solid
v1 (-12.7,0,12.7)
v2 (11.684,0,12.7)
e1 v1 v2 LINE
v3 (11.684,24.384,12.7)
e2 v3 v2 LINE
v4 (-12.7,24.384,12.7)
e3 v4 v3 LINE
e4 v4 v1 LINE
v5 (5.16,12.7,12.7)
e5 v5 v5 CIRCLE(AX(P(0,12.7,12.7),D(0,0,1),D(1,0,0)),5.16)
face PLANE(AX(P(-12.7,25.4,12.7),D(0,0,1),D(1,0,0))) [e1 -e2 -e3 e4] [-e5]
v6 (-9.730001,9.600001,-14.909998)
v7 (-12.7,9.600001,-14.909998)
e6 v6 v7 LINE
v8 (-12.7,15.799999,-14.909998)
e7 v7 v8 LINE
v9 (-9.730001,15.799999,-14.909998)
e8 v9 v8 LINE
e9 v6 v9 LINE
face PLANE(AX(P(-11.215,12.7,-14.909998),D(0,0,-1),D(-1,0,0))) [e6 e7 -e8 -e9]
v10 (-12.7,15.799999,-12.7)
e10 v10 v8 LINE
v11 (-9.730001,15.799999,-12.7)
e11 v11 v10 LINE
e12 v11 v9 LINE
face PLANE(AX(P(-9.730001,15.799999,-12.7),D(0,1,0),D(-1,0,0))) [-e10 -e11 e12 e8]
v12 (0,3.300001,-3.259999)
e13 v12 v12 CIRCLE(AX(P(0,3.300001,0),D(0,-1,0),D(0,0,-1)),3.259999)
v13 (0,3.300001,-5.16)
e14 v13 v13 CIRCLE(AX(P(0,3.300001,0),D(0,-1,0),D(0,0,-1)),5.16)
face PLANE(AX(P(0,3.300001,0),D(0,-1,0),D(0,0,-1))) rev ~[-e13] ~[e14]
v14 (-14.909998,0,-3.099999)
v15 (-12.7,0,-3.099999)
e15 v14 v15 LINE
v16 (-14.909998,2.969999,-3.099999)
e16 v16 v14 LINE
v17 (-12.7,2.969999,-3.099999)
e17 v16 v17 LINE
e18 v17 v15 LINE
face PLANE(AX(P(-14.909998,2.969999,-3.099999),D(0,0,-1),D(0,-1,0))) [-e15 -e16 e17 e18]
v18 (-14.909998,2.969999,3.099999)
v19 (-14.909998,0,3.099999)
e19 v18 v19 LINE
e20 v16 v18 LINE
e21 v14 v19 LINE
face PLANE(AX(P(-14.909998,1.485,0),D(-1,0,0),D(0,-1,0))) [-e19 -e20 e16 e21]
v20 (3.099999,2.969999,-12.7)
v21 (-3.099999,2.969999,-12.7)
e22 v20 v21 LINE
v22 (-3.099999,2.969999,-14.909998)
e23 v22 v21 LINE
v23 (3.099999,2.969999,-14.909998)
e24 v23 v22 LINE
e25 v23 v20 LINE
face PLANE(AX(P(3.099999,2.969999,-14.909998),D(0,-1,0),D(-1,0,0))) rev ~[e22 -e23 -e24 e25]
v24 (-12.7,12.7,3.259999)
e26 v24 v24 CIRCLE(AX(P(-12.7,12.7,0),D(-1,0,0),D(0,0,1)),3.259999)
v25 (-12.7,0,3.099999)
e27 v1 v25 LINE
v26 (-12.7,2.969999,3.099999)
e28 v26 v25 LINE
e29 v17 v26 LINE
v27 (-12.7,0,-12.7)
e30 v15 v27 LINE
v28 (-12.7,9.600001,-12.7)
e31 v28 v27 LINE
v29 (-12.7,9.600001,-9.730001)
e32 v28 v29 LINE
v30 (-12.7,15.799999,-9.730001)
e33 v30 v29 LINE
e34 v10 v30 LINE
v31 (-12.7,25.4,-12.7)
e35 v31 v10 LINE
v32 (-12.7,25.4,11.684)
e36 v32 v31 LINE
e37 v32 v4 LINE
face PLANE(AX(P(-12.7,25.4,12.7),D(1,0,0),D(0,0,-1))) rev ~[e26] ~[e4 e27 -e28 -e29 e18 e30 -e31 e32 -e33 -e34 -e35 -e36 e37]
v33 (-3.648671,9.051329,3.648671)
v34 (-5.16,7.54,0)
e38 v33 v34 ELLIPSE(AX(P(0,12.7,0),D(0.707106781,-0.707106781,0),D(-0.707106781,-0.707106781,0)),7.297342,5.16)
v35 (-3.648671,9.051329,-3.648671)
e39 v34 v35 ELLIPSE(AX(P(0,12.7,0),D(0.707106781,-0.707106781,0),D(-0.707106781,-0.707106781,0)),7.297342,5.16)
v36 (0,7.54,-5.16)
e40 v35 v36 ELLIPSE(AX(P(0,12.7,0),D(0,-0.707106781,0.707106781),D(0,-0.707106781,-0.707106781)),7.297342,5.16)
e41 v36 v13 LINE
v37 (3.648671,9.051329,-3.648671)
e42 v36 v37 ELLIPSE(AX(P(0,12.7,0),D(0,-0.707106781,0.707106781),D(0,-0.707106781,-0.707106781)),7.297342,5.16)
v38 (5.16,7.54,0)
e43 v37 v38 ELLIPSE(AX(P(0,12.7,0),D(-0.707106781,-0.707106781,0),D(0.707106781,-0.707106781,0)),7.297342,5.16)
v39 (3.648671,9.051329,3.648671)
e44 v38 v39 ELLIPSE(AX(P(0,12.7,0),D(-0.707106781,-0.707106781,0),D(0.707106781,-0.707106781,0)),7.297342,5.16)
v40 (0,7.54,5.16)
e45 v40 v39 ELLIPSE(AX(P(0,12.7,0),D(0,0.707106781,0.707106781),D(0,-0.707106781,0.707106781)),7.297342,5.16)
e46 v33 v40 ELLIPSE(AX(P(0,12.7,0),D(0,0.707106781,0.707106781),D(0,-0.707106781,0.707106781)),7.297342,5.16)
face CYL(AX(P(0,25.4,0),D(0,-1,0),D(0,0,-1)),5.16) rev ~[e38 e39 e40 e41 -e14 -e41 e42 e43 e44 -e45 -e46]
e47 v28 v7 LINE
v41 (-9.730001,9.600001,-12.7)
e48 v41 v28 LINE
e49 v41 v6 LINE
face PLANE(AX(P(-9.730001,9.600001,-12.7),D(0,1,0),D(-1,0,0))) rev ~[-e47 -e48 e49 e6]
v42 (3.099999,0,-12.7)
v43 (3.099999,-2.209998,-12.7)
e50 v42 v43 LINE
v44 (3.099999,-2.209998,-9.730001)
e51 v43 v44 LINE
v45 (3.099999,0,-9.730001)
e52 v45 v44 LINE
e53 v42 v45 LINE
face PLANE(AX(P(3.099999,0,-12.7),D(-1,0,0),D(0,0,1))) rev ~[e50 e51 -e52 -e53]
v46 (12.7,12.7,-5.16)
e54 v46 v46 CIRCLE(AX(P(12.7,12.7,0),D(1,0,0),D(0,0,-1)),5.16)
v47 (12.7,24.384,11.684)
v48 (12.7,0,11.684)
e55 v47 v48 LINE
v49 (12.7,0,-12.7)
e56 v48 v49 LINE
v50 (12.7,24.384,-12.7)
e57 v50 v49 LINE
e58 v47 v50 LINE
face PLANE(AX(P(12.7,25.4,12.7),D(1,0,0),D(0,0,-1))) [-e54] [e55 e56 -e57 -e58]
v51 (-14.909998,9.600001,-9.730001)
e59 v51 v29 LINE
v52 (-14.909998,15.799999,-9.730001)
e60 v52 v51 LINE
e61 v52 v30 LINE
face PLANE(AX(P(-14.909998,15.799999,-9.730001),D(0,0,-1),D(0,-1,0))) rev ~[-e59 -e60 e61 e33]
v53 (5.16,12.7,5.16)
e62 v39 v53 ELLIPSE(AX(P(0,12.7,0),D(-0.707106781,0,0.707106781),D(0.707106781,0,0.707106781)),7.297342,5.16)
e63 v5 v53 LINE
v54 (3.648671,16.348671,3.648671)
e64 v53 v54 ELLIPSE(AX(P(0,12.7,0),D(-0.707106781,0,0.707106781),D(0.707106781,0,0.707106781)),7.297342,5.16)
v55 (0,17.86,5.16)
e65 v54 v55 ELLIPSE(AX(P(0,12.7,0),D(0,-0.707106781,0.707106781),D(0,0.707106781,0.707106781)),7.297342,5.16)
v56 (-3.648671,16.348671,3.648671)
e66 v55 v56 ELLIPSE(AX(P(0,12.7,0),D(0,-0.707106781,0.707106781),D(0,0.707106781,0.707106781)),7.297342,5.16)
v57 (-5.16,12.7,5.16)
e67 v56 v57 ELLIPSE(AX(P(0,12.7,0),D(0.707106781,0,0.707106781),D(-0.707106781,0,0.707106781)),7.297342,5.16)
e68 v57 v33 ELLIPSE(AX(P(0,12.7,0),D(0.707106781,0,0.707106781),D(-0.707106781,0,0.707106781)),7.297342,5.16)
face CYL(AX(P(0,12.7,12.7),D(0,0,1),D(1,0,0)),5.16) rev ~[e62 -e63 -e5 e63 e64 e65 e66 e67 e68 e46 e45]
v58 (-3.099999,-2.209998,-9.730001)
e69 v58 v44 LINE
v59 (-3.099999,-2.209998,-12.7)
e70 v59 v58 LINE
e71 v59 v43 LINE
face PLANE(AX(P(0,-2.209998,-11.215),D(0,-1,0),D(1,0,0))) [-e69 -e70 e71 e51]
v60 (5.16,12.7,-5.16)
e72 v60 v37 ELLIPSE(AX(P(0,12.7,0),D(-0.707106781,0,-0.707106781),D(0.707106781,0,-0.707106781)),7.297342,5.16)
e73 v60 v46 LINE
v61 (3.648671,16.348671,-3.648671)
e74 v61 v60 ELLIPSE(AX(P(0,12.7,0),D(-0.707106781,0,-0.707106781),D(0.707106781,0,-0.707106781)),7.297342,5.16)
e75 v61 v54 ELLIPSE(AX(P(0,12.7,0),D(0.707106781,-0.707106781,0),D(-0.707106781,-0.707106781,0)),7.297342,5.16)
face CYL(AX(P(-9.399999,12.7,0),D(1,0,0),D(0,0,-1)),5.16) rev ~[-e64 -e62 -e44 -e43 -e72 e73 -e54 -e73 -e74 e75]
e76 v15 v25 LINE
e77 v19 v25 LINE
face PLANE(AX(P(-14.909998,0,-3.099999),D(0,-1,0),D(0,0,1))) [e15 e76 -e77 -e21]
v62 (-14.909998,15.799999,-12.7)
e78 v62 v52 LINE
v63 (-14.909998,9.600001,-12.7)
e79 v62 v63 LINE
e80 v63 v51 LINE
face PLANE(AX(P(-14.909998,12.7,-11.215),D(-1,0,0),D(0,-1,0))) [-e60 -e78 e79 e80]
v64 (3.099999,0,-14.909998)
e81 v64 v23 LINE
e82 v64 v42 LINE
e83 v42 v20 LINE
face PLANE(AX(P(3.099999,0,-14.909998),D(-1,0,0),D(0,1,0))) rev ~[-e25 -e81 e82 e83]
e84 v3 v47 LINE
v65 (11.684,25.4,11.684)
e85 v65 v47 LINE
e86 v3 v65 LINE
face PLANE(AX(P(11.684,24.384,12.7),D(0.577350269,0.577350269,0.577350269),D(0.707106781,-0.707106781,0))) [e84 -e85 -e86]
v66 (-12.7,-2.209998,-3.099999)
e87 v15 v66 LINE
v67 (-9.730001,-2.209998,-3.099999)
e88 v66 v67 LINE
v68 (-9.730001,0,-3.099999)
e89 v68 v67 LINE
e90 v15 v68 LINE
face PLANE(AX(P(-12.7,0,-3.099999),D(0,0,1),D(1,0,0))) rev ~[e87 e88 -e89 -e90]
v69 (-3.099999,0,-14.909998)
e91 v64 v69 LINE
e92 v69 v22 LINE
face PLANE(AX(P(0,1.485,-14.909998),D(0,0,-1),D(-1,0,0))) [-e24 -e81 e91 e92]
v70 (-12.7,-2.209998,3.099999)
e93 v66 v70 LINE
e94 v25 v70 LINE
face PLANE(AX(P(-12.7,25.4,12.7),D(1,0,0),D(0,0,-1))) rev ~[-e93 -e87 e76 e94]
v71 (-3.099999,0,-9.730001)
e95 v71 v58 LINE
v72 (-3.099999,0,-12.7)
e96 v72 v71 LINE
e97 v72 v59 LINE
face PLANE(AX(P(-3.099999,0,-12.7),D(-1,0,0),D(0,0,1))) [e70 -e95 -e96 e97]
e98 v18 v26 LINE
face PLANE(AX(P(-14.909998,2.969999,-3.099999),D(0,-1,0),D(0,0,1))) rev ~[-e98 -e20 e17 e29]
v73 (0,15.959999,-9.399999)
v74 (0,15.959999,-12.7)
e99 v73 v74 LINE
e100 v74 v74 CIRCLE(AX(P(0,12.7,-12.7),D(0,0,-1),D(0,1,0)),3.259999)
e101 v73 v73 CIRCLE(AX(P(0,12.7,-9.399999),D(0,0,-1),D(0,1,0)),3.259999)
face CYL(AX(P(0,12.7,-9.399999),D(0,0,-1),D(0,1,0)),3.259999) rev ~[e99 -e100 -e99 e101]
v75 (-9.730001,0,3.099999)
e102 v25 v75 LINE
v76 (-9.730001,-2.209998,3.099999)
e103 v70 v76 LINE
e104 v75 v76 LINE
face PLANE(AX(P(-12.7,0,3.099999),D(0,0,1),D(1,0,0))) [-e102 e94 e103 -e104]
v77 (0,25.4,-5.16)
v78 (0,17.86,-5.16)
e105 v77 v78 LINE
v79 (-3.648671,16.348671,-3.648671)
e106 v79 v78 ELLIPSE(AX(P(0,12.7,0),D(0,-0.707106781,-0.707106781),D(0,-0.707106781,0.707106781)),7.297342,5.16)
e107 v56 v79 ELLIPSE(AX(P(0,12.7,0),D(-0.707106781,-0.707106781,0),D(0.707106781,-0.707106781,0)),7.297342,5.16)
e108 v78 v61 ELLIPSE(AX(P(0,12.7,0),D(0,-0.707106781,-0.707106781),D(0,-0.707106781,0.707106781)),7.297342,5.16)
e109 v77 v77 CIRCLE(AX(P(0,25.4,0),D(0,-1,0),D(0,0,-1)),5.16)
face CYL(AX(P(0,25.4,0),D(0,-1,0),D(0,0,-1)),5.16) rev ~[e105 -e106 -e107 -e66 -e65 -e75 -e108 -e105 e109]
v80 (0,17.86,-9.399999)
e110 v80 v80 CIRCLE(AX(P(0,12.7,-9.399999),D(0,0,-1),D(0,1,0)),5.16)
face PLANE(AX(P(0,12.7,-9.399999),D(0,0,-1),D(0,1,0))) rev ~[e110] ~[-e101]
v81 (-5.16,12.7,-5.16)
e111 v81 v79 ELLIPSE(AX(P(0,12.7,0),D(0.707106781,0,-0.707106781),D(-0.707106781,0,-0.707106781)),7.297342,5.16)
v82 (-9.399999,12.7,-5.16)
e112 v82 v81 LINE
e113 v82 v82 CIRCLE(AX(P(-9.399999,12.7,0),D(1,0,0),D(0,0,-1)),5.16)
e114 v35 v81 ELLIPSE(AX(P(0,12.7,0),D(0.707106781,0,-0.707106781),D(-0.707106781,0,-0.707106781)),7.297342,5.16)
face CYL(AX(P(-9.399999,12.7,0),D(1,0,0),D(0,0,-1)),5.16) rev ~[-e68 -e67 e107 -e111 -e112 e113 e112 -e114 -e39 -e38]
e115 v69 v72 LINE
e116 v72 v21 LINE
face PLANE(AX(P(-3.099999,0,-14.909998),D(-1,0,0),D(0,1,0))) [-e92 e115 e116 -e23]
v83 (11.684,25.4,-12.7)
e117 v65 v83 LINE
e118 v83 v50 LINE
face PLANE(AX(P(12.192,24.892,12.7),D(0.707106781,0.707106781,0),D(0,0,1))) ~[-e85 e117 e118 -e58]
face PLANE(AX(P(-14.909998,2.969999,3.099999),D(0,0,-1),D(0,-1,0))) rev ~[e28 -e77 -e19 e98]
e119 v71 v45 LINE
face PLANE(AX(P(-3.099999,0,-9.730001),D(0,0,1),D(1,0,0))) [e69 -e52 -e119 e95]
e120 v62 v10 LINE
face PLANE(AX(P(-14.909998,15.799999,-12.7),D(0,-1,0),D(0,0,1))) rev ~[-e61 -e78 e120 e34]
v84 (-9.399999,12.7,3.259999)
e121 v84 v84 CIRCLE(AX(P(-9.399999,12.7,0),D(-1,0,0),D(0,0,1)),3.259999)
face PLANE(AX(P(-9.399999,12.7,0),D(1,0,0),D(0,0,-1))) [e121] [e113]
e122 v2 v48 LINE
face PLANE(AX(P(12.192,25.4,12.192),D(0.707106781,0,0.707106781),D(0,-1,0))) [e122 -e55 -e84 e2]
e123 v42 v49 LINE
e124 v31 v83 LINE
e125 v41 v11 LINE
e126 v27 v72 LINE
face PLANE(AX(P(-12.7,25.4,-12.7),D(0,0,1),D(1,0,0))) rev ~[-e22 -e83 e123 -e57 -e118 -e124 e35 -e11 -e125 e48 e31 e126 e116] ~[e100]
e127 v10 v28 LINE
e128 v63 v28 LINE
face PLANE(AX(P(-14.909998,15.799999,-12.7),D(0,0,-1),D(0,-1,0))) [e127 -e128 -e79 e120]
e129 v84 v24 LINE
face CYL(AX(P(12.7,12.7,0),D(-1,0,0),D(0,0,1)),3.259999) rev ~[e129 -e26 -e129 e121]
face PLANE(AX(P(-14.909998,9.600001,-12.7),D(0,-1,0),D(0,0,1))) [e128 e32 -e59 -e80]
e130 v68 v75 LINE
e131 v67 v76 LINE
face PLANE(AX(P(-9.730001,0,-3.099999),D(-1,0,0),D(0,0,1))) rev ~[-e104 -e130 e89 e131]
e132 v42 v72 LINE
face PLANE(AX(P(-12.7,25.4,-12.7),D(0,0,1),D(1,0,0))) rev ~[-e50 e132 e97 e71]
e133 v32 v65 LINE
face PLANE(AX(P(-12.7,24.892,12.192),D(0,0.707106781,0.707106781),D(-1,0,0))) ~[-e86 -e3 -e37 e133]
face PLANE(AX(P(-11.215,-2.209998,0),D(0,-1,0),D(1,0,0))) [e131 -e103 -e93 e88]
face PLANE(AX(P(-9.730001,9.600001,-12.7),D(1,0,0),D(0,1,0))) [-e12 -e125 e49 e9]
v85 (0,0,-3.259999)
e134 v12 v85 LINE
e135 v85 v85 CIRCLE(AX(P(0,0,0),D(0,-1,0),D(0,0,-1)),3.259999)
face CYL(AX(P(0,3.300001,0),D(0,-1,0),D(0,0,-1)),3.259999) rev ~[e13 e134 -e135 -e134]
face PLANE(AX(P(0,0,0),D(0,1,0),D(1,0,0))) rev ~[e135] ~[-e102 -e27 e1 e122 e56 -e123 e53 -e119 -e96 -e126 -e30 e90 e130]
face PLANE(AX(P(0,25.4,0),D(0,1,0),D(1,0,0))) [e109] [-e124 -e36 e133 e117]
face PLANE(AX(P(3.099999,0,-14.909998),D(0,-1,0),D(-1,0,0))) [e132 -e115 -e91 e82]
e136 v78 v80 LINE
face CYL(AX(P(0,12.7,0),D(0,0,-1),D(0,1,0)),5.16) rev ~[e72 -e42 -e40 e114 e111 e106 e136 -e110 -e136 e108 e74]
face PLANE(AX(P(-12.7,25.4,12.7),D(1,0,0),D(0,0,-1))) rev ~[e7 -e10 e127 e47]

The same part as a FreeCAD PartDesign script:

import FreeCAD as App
import Part
import Sketcher
Q = App.Units.Quantity


def edges_at(feature, points):
    """Names of the edges that pass closest to the given points."""
    edges = feature.Shape.Edges
    near = lambda p: min(range(len(edges)), key=lambda i: edges[i].distToShape(Part.Vertex(*p))[0])
    return sorted({f"Edge{near(p) + 1}" for p in points})


def add_polygon(sketch, points):
    """Adds a closed chain of lines whose ends are joined by coincident constraints."""
    first, n = sketch.GeometryCount, len(points)
    for a, b in zip(points, points[1:] + points[:1]):
        sketch.addGeometry(Part.LineSegment(App.Vector(*a, 0), App.Vector(*b, 0)), False)
    for i in range(n):
        sketch.addConstraint(Sketcher.Constraint("Coincident", first + i, 2, first + (i + 1) % n, 1))

doc = App.newDocument("Part")
body = doc.addObject("PartDesign::Body", "Body")

sketch1 = body.newObject("Sketcher::SketchObject", "Sketch")
sketch1.AttachmentSupport = (doc.getObject("XZ_Plane"), [""])
sketch1.MapMode = "FlatFace"
sketch1.AttachmentOffset = App.Placement(App.Vector(0, 0, -25.4), App.Rotation())
add_polygon(sketch1, [(-13, -13), (-13, 13), (13, 13), (13, -13)])
sketch1.addConstraint([
    Sketcher.Constraint("Vertical", 0),
    Sketcher.Constraint("Horizontal", 1),
    Sketcher.Constraint("Vertical", 2),
    Sketcher.Constraint("Horizontal", 3),
    Sketcher.Constraint("Symmetric", 0, 2, 2, 2, -1, 1),
    Sketcher.Constraint("Equal", 3, 0),
    Sketcher.Constraint("DistanceX", 1, 1, 1, 2, Q("25.4 mm")),
])
pad1 = body.newObject("PartDesign::Pad", "Pad")
pad1.Profile = sketch1
pad1.Length = 25.4

sketch2 = body.newObject("Sketcher::SketchObject", "Sketch001")
sketch2.AttachmentSupport = (doc.getObject("YZ_Plane"), [""])
sketch2.MapMode = "FlatFace"
add_polygon(sketch2, [(25.4, 0), (0, 0), (0, -3.3), (3.3, -3.3), (3.3, -5.2), (25.4, -5.2)])
sketch2.addConstraint([
    Sketcher.Constraint("Horizontal", 0),
    Sketcher.Constraint("Vertical", 1),
    Sketcher.Constraint("Horizontal", 2),
    Sketcher.Constraint("Vertical", 3),
    Sketcher.Constraint("Horizontal", 4),
    Sketcher.Constraint("Vertical", 5),
    Sketcher.Constraint("Coincident", 0, 2, -1, 1),
    Sketcher.Constraint("DistanceX", 0, 2, 0, 1, Q("25.4 mm")),
    Sketcher.Constraint("DistanceX", 2, 1, 2, 2, Q("3.300001 mm")),
    Sketcher.Constraint("DistanceY", 3, 2, 3, 1, Q("1.900001 mm")),
    Sketcher.Constraint("DistanceY", 1, 2, 1, 1, Q("3.259999 mm")),
])
groove = body.newObject("PartDesign::Groove", "Groove")
groove.Profile = sketch2
groove.ReferenceAxis = (sketch2, ["H_Axis"])
groove.Angle = 360

sketch3 = body.newObject("Sketcher::SketchObject", "Sketch002")
sketch3.AttachmentSupport = (doc.getObject("YZ_Plane"), [""])
sketch3.MapMode = "FlatFace"
add_polygon(sketch3, [(12.7, 0), (12.7, -12.7), (16, -12.7), (16, -9.4), (17.9, -9.4), (17.9, 0)])
sketch3.addGeometry(Part.LineSegment(App.Vector(12.7, 0, 0), App.Vector(12.7, -12.7, 0)), True)
sketch3.addConstraint([
    Sketcher.Constraint("Vertical", 0),
    Sketcher.Constraint("Horizontal", 1),
    Sketcher.Constraint("Vertical", 2),
    Sketcher.Constraint("Horizontal", 3),
    Sketcher.Constraint("Vertical", 4),
    Sketcher.Constraint("Horizontal", 5),
    Sketcher.Constraint("Vertical", 6),
    Sketcher.Constraint("Coincident", 6, 1, 5, 2),
    Sketcher.Constraint("PointOnObject", 4, 2, -1),
    Sketcher.Constraint("Horizontal", 1, 2, 6, 2),
    Sketcher.Constraint("DistanceX", 3, 1, 3, 2, Q("1.900001 mm")),
    Sketcher.Constraint("DistanceY", 0, 2, 0, 1, Q("12.7 mm")),
    Sketcher.Constraint("DistanceY", 2, 1, 2, 2, Q("3.300001 mm")),
    Sketcher.Constraint("DistanceX", 1, 1, 1, 2, Q("3.259999 mm")),
    Sketcher.Constraint("DistanceX", -1, 1, 0, 2, Q("12.7 mm")),
])
groove2 = body.newObject("PartDesign::Groove", "Groove001")
groove2.Profile = sketch3
groove2.ReferenceAxis = (sketch3, ["Axis0"])
groove2.Angle = 360

sketch4 = body.newObject("Sketcher::SketchObject", "Sketch003")
sketch4.AttachmentSupport = (doc.getObject("XY_Plane"), [""])
sketch4.MapMode = "FlatFace"
sketch4.AttachmentOffset = App.Placement(App.Vector(0, 0, -12.7), App.Rotation())
add_polygon(sketch4, [(-9.7, 15.8), (-9.7, 9.6), (-12.7, 9.6), (-12.7, 15.8)])
sketch4.addConstraint([
    Sketcher.Constraint("Vertical", 0),
    Sketcher.Constraint("Horizontal", 1),
    Sketcher.Constraint("Vertical", 2),
    Sketcher.Constraint("Horizontal", 3),
    Sketcher.Constraint("DistanceX", 1, 2, 1, 1, Q("2.969999 mm")),
    Sketcher.Constraint("DistanceY", -1, 1, 0, 2, Q("9.600001 mm")),
    Sketcher.Constraint("DistanceX", 1, 2, -1, 1, Q("12.7 mm")),
    Sketcher.Constraint("DistanceY", -1, 1, 2, 2, Q("15.799999 mm")),
])
pad2 = body.newObject("PartDesign::Pad", "Pad001")
pad2.Profile = sketch4
pad2.Length = 2.209998
pad2.Reversed = True

sketch5 = body.newObject("Sketcher::SketchObject", "Sketch004")
sketch5.AttachmentSupport = (doc.getObject("YZ_Plane"), [""])
sketch5.MapMode = "FlatFace"
sketch5.AttachmentOffset = App.Placement(App.Vector(0, 0, -14.909998), App.Rotation())
add_polygon(sketch5, [(15.8, -9.7), (15.8, -12.7), (9.6, -12.7), (9.6, -9.7)])
sketch5.addConstraint([
    Sketcher.Constraint("Vertical", 0),
    Sketcher.Constraint("Horizontal", 1),
    Sketcher.Constraint("Vertical", 2),
    Sketcher.Constraint("Horizontal", 3),
    Sketcher.Constraint("DistanceY", 0, 2, 0, 1, Q("2.969999 mm")),
    Sketcher.Constraint("DistanceX", -1, 1, 0, 2, Q("15.799999 mm")),
    Sketcher.Constraint("DistanceY", 0, 2, -1, 1, Q("12.7 mm")),
    Sketcher.Constraint("DistanceX", -1, 1, 1, 2, Q("9.600001 mm")),
])
pad3 = body.newObject("PartDesign::Pad", "Pad002")
pad3.Profile = sketch5
pad3.Type = "UpToFirst"

sketch6 = body.newObject("Sketcher::SketchObject", "Sketch005")
sketch6.AttachmentSupport = (doc.getObject("XZ_Plane"), [""])
sketch6.MapMode = "FlatFace"
add_polygon(sketch6, [(-3.1, -9.7), (-3.1, -12.7), (3.1, -12.7), (3.1, -9.7)])
sketch6.addConstraint([
    Sketcher.Constraint("Vertical", 0),
    Sketcher.Constraint("Horizontal", 1),
    Sketcher.Constraint("Vertical", 2),
    Sketcher.Constraint("Horizontal", 3),
    Sketcher.Constraint("DistanceY", 0, 2, 0, 1, Q("2.969999 mm")),
    Sketcher.Constraint("DistanceX", 0, 2, -1, 1, Q("3.099999 mm")),
    Sketcher.Constraint("DistanceY", 0, 2, -1, 1, Q("12.7 mm")),
    Sketcher.Constraint("DistanceX", -1, 1, 1, 2, Q("3.099999 mm")),
])
pad4 = body.newObject("PartDesign::Pad", "Pad003")
pad4.Profile = sketch6
pad4.Length = 2.209998

sketch7 = body.newObject("Sketcher::SketchObject", "Sketch006")
sketch7.AttachmentSupport = (doc.getObject("XY_Plane"), [""])
sketch7.MapMode = "FlatFace"
sketch7.AttachmentOffset = App.Placement(App.Vector(0, 0, -14.909998), App.Rotation())
add_polygon(sketch7, [(3.1, 3), (3.1, 0), (-3.1, 0), (-3.1, 3)])
sketch7.addConstraint([
    Sketcher.Constraint("Vertical", 0),
    Sketcher.Constraint("Horizontal", 1),
    Sketcher.Constraint("Vertical", 2),
    Sketcher.Constraint("Horizontal", 3),
    Sketcher.Constraint("Symmetric", 0, 2, 1, 2, -1, 1),
    Sketcher.Constraint("DistanceY", 0, 2, 0, 1, Q("2.969999 mm")),
    Sketcher.Constraint("DistanceX", -1, 1, 0, 2, Q("3.099999 mm")),
])
pad5 = body.newObject("PartDesign::Pad", "Pad004")
pad5.Profile = sketch7
pad5.Type = "UpToFirst"

sketch8 = body.newObject("Sketcher::SketchObject", "Sketch007")
sketch8.AttachmentSupport = (doc.getObject("XZ_Plane"), [""])
sketch8.MapMode = "FlatFace"
add_polygon(sketch8, [(-12.7, 3.1), (-12.7, -3.1), (-9.7, -3.1), (-9.7, 3.1)])
sketch8.addConstraint([
    Sketcher.Constraint("Vertical", 0),
    Sketcher.Constraint("Horizontal", 1),
    Sketcher.Constraint("Vertical", 2),
    Sketcher.Constraint("Horizontal", 3),
    Sketcher.Constraint("DistanceX", 1, 1, 1, 2, Q("2.969999 mm")),
    Sketcher.Constraint("DistanceX", 0, 2, -1, 1, Q("12.7 mm")),
    Sketcher.Constraint("DistanceY", 0, 2, -1, 1, Q("3.099999 mm")),
    Sketcher.Constraint("DistanceY", -1, 1, 2, 2, Q("3.099999 mm")),
])
pad6 = body.newObject("PartDesign::Pad", "Pad005")
pad6.Profile = sketch8
pad6.Length = 2.209998

sketch9 = body.newObject("Sketcher::SketchObject", "Sketch008")
sketch9.AttachmentSupport = (doc.getObject("YZ_Plane"), [""])
sketch9.MapMode = "FlatFace"
sketch9.AttachmentOffset = App.Placement(App.Vector(0, 0, -14.909998), App.Rotation())
add_polygon(sketch9, [(3, 3.1), (3, -3.1), (0, -3.1), (0, 3.1)])
sketch9.addConstraint([
    Sketcher.Constraint("Vertical", 0),
    Sketcher.Constraint("Horizontal", 1),
    Sketcher.Constraint("Vertical", 2),
    Sketcher.Constraint("Horizontal", 3),
    Sketcher.Constraint("Symmetric", 1, 2, 2, 2, -1, 1),
    Sketcher.Constraint("DistanceX", 1, 2, 1, 1, Q("2.969999 mm")),
    Sketcher.Constraint("DistanceY", 0, 2, -1, 1, Q("3.099999 mm")),
])
pad7 = body.newObject("PartDesign::Pad", "Pad006")
pad7.Profile = sketch9
pad7.Type = "UpToFirst"

sketch10 = body.newObject("Sketcher::SketchObject", "Sketch009")
sketch10.AttachmentSupport = (doc.getObject("XY_Plane"), [""])
sketch10.MapMode = "FlatFace"
sketch10.AttachmentOffset = App.Placement(App.Vector(0, 0, 12.7), App.Rotation())
sketch10.addGeometry(Part.Circle(App.Vector(0, 13, 0), App.Vector(0, 0, 1), 5), False)
sketch10.addConstraint([
    Sketcher.Constraint("PointOnObject", 0, 3, -2),
    Sketcher.Constraint("Diameter", 0, Q("10.32 mm")),
    Sketcher.Constraint("DistanceY", -1, 1, 0, 3, Q("12.7 mm")),
])
pocket1 = body.newObject("PartDesign::Pocket", "Pocket")
pocket1.Profile = sketch10
pocket1.Type = "UpToFirst"

sketch11 = body.newObject("Sketcher::SketchObject", "Sketch010")
sketch11.AttachmentSupport = (doc.getObject("YZ_Plane"), [""])
sketch11.MapMode = "FlatFace"
sketch11.AttachmentOffset = App.Placement(App.Vector(0, 0, 12.7), App.Rotation())
sketch11.addGeometry(Part.Circle(App.Vector(12.7, 0, 0), App.Vector(0, 0, 1), 3.3), False)
sketch11.addConstraint([
    Sketcher.Constraint("PointOnObject", 0, 3, -1),
    Sketcher.Constraint("DistanceX", -1, 1, 0, 3, Q("12.7 mm")),
    Sketcher.Constraint("Diameter", 0, Q("6.519997 mm")),
])
doc.recompute()
hole = body.newObject("PartDesign::Hole", "Hole")
hole.Profile = sketch11
hole.ThreadType = "None"
hole.Diameter = 6.519997
hole.DepthType = "ThroughAll"
hole.HoleCutType = "Counterbore"
hole.HoleCutDiameter = 10.32
hole.HoleCutDepth = 22.099999
doc.recompute()

chamfer = body.newObject("PartDesign::Chamfer", "Chamfer")
chamfer.Base = (hole, edges_at(hole, [(12.7, 25.4, 0), (0, 25.4, 12.7), (12.7, 12.7, 12.7)]))
chamfer.Size = 1.016

doc.recompute()
